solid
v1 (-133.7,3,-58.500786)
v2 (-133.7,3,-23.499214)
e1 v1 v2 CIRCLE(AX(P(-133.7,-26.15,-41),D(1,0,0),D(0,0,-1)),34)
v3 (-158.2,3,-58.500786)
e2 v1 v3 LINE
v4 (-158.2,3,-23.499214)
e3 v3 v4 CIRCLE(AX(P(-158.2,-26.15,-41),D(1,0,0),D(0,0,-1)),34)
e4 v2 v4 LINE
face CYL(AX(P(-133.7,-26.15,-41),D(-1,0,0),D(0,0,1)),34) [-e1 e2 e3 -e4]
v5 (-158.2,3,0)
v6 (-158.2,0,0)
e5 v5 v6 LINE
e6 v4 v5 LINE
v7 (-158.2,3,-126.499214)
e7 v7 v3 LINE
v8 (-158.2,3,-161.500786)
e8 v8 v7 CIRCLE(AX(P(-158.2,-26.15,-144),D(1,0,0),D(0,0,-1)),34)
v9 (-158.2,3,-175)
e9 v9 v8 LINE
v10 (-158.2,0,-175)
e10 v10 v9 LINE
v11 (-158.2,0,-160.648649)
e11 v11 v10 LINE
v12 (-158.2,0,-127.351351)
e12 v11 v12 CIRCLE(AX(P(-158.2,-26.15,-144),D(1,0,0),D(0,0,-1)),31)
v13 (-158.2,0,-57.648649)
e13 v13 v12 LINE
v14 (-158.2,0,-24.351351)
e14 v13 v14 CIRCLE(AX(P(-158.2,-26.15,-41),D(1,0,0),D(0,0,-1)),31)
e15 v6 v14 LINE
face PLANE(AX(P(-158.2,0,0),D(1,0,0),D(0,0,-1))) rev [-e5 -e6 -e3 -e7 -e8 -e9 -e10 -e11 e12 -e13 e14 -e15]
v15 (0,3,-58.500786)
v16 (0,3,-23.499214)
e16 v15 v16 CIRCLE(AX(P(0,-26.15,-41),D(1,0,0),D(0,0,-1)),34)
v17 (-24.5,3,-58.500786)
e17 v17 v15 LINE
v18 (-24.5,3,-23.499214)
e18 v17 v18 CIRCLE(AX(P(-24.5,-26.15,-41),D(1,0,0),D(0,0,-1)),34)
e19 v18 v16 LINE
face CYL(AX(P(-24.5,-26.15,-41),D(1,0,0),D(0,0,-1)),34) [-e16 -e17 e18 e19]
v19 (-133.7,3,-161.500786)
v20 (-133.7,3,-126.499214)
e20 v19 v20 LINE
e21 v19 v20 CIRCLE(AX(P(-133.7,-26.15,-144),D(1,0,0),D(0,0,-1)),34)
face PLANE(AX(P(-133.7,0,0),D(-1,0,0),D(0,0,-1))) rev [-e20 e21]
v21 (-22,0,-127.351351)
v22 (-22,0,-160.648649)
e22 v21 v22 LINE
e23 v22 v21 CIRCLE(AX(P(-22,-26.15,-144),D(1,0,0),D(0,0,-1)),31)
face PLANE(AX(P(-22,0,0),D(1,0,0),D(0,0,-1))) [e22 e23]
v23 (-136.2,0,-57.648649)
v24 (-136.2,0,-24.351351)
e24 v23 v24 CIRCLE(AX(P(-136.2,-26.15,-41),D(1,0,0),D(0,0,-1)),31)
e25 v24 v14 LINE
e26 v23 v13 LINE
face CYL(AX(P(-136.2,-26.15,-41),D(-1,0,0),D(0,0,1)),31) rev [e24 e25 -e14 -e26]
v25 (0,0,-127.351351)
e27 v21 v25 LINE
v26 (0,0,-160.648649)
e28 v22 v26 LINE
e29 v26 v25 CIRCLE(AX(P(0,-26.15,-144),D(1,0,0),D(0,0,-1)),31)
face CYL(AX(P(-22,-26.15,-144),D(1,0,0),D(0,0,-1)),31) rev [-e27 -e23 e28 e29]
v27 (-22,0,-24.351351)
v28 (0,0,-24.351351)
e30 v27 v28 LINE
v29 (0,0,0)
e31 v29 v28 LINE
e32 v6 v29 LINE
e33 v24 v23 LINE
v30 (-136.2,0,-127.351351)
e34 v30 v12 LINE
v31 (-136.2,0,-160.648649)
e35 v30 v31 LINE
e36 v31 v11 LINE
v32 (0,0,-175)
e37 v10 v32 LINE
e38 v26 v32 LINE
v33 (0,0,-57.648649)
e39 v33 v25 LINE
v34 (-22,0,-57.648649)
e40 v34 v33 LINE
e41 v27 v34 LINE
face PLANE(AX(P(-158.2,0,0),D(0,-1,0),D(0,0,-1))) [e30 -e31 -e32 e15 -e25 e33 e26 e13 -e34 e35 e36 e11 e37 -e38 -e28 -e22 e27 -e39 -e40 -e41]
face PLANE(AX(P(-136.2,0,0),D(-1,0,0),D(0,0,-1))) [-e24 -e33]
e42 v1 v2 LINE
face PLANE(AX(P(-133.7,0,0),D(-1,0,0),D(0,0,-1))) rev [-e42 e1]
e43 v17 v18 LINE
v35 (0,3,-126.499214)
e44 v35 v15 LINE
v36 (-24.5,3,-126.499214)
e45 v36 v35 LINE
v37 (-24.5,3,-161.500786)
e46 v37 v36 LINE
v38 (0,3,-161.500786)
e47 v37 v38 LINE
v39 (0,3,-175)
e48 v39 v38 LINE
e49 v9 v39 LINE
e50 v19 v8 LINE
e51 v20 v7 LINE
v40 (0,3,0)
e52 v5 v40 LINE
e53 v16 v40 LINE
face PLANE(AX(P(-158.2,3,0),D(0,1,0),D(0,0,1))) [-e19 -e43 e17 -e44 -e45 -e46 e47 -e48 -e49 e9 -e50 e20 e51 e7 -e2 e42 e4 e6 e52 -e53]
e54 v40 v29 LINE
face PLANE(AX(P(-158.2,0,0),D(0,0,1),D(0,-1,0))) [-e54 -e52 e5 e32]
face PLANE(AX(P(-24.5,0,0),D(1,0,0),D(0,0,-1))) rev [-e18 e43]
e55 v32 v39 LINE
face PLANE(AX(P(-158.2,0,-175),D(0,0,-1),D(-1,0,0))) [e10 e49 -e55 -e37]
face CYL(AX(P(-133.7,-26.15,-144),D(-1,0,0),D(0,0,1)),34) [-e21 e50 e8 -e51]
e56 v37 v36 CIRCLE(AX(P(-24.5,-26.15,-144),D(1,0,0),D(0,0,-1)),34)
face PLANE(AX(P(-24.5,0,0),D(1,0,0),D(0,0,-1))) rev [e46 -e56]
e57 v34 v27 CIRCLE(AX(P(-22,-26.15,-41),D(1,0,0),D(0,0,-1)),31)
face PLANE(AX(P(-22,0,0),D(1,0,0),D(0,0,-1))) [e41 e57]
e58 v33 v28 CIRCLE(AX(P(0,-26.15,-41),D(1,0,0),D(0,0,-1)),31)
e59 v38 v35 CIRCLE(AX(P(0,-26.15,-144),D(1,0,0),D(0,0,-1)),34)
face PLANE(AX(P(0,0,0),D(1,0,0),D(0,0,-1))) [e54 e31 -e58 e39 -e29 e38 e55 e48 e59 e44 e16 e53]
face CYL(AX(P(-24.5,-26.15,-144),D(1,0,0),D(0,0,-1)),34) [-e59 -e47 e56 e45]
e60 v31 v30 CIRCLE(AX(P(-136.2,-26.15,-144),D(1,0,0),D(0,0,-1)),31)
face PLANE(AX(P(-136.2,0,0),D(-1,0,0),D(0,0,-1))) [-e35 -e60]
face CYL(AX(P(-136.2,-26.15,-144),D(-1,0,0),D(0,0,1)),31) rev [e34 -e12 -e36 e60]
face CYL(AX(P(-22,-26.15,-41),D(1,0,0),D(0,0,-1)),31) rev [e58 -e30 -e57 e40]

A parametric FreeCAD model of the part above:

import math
import FreeCAD as App
import Part
import Sketcher

V = App.Vector
Q = App.Units.Quantity


def add_polygon(sketch, points):
    """Adds a closed chain of lines whose ends are joined by coincident constraints."""
    first, n = sketch.GeometryCount, len(points)
    for a, b in zip(points, points[1:] + points[:1]):
        sketch.addGeometry(Part.LineSegment(App.Vector(*a, 0), App.Vector(*b, 0)), False)
    for i in range(n):
        sketch.addConstraint(Sketcher.Constraint("Coincident", first + i, 2, first + (i + 1) % n, 1))

doc = App.newDocument("Part")
body = doc.addObject("PartDesign::Body", "Body")

# Sketch on YZ plane
sketch1 = body.newObject("Sketcher::SketchObject", "Sketch")
sketch1.AttachmentSupport = (doc.getObject("YZ_Plane"), [""])
sketch1.MapMode = "FlatFace"
add_polygon(sketch1, [(3, 0), (0, 0), (0, -175), (3, -175)])  # lines 0-3
sketch1.addConstraint([
    Sketcher.Constraint("Horizontal", 0),
    Sketcher.Constraint("Vertical", 1),
    Sketcher.Constraint("Horizontal", 2),
    Sketcher.Constraint("Vertical", 3),
    Sketcher.Constraint("Coincident", 0, 2, -1, 1),
    Sketcher.Constraint("DistanceX", 0, 2, 0, 1, Q("3 mm")),
    Sketcher.Constraint("DistanceY", 1, 2, 1, 1, Q("175 mm")),
])
pad1 = body.newObject("PartDesign::Pad", "Pad")
pad1.Profile = sketch1
pad1.Length = 158.2
pad1.Reversed = True

# Sketch on YZ plane
sketch2 = body.newObject("Sketcher::SketchObject", "Sketch001")
sketch2.AttachmentSupport = (doc.getObject("YZ_Plane"), [""])
sketch2.MapMode = "FlatFace"
sketch2.addGeometry([
    Part.ArcOfCircle(Part.Circle(V(-26, -41, 0), V(0, 0, 1), 34), math.radians(-31), math.radians(31)),
    Part.LineSegment(V(3, -23, 0), V(3, -59, 0)),
    Part.ArcOfCircle(Part.Circle(V(-26, -144, 0), V(0, 0, 1), 34), math.radians(-31), math.radians(31)),
    Part.LineSegment(V(3, -126, 0), V(3, -162, 0)),
], False)
sketch2.addConstraint([
    Sketcher.Constraint("Coincident", 0, 1, 1, 2),
    Sketcher.Constraint("Coincident", 1, 1, 0, 2),
    Sketcher.Constraint("Coincident", 2, 1, 3, 2),
    Sketcher.Constraint("Coincident", 3, 1, 2, 2),
    Sketcher.Constraint("Vertical", 1),
    Sketcher.Constraint("Vertical", 3),
    Sketcher.Constraint("Equal", 0, 2),
    Sketcher.Constraint("Vertical", 0, 3, 2, 3),
    Sketcher.Constraint("Vertical", 1, 1, 2, 1),
    Sketcher.Constraint("Radius", 0, Q("34 mm")),
    Sketcher.Constraint("DistanceY", 0, 3, -1, 1, Q("41 mm")),
    Sketcher.Constraint("DistanceY", 2, 3, -1, 1, Q("144 mm")),
    Sketcher.Constraint("DistanceX", -1, 1, 0, 1, Q("3 mm")),
    Sketcher.Constraint("DistanceX", 0, 3, -1, 1, Q("26.15 mm")),
])
pad2 = body.newObject("PartDesign::Pad", "Pad001")
pad2.Profile = sketch2
pad2.Length = 24.5
pad2.Reversed = True

# Sketch on YZ plane
sketch3 = body.newObject("Sketcher::SketchObject", "Sketch002")
sketch3.AttachmentSupport = (doc.getObject("YZ_Plane"), [""])
sketch3.MapMode = "FlatFace"
sketch3.addGeometry([
    Part.ArcOfCircle(Part.Circle(V(-26, -41, 0), V(0, 0, 1), 31), math.radians(19.89), math.radians(32.48)),  # 0
    Part.LineSegment(V(0, -24, 0), V(0, -58, 0)),  # 1
    Part.ArcOfCircle(Part.Circle(V(-26, -41, 0), V(0, 0, 1), 31), math.radians(-32.48), math.radians(-19.89)),  # 2
    Part.ArcOfCircle(Part.Circle(V(-26, -41, 0), V(0, 0, 1), 31), math.radians(-20), math.radians(20)),  # 3
    Part.ArcOfCircle(Part.Circle(V(-26, -144, 0), V(0, 0, 1), 31), math.radians(19.89), math.radians(32.48)),  # 4
    Part.LineSegment(V(0, -127, 0), V(0, -161, 0)),  # 5
    Part.ArcOfCircle(Part.Circle(V(-26, -144, 0), V(0, 0, 1), 31), math.radians(-32.48), math.radians(-19.89)),  # 6
    Part.ArcOfCircle(Part.Circle(V(-26, -144, 0), V(0, 0, 1), 31), math.radians(-20), math.radians(20)),  # 7
], False)
sketch3.addConstraint([
    Sketcher.Constraint("Coincident", 0, 2, 1, 1),
    Sketcher.Constraint("Coincident", 1, 2, 2, 1),
    Sketcher.Constraint("Tangent", 2, 2, 3, 1),
    Sketcher.Constraint("Tangent", 3, 2, 0, 1),
    Sketcher.Constraint("Coincident", 4, 2, 5, 1),
    Sketcher.Constraint("Coincident", 5, 2, 6, 1),
    Sketcher.Constraint("Tangent", 6, 2, 7, 1),
    Sketcher.Constraint("Tangent", 7, 2, 4, 1),
    Sketcher.Constraint("Vertical", 1),
    Sketcher.Constraint("Vertical", 5),
    Sketcher.Constraint("Coincident", 2, 3, 0, 3),
    Sketcher.Constraint("Coincident", 6, 3, 4, 3),
    Sketcher.Constraint("Equal", 3, 4),
    Sketcher.Constraint("PointOnObject", 0, 2, -2),
    Sketcher.Constraint("PointOnObject", 4, 2, -2),
    Sketcher.Constraint("Vertical", 3, 3, 4, 3),
    Sketcher.Constraint("Vertical", 2, 2, 3, 2),
    Sketcher.Constraint("Vertical", 3, 2, 6, 2),
    Sketcher.Constraint("Vertical", 6, 2, 7, 2),
    Sketcher.Constraint("Radius", 0, Q("31 mm")),
    Sketcher.Constraint("DistanceY", 0, 3, -1, 1, Q("41 mm")),
    Sketcher.Constraint("DistanceY", 4, 3, -1, 1, Q("144 mm")),
    Sketcher.Constraint("DistanceX", -1, 1, 2, 2, Q("3 mm")),
    Sketcher.Constraint("DistanceX", 0, 3, -1, 1, Q("26.15 mm")),
])
pocket1 = body.newObject("PartDesign::Pocket", "Pocket")
pocket1.Profile = sketch3
pocket1.Length = 22
doc.recompute()

datumplane = body.newObject("PartDesign::Plane", "DatumPlane")
datumplane.AttachmentSupport = (doc.getObject("YZ_Plane"), [""])
datumplane.MapMode = "FlatFace"
datumplane.AttachmentOffset = App.Placement(V(0, 0, -79.1), App.Rotation())
mirrored = body.newObject("PartDesign::Mirrored", "Mirrored")
mirrored.Originals = [pad2, pocket1]
mirrored.MirrorPlane = (datumplane, [""])
body.Tip = mirrored

doc.recompute()
